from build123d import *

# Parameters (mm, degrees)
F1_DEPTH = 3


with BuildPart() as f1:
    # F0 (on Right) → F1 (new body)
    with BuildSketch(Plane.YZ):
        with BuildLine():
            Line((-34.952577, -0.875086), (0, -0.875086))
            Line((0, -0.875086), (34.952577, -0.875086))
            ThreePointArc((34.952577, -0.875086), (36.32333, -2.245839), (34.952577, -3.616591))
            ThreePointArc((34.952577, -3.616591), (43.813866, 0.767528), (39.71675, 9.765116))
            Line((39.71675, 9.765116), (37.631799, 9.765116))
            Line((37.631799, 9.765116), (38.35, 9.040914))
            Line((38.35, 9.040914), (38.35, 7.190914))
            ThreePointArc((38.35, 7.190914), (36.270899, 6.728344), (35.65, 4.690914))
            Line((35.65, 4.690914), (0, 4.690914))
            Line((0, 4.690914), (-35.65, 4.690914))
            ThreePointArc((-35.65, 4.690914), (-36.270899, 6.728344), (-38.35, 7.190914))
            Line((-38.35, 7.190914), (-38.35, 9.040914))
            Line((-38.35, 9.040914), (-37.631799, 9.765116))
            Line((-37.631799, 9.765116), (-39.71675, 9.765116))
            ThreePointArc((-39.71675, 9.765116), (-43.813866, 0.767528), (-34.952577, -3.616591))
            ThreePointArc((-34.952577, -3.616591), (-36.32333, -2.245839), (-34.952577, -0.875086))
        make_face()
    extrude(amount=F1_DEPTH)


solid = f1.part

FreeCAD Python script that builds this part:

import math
import FreeCAD as App
import Part
import Sketcher

V = App.Vector
Q = App.Units.Quantity

doc = App.newDocument("Part")
body = doc.addObject("PartDesign::Body", "Body")

# Sketch on YZ plane
sketch1 = body.newObject("Sketcher::SketchObject", "Sketch")
sketch1.AttachmentSupport = (doc.getObject("YZ_Plane"), [""])
sketch1.MapMode = "FlatFace"
sketch1.addGeometry([
    Part.LineSegment(V(-34.952577, -0.875086, 0), V(34.952577, -0.875086, 0)),  # 0
    Part.ArcOfCircle(Part.Circle(V(34.952577, -2.245839, 0), V(0, 0, 1), 1.370753), math.radians(-90.000021), math.radians(90.000021)),  # 1
    Part.ArcOfCircle(Part.Circle(V(37.119556, 3.150845, 0), V(0, 0, 1), 7.105913), math.radians(-107.755415), math.radians(68.561788)),  # 2
    Part.LineSegment(V(39.71675, 9.765116, 0), V(37.631799, 9.765116, 0)),  # 3
    Part.LineSegment(V(37.631799, 9.765116, 0), V(38.35, 9.040914, 0)),  # 4
    Part.LineSegment(V(38.35, 9.040914, 0), V(38.35, 7.190914, 0)),  # 5
    Part.ArcOfCircle(Part.Circle(V(37.706974, 5.177382, 0), V(0, 0, 1), 2.113715), math.radians(72.288988), math.radians(193.305816)),  # 6
    Part.LineSegment(V(35.65, 4.690914, 0), V(-35.65, 4.690914, 0)),  # 7
    Part.ArcOfCircle(Part.Circle(V(-37.706974, 5.177382, 0), V(0, 0, 1), 2.113715), math.radians(-13.305816), math.radians(107.711012)),  # 8
    Part.LineSegment(V(-38.35, 7.190914, 0), V(-38.35, 9.040914, 0)),  # 9
    Part.LineSegment(V(-38.35, 9.040914, 0), V(-37.631799, 9.765116, 0)),  # 10
    Part.LineSegment(V(-37.631799, 9.765116, 0), V(-39.71675, 9.765116, 0)),  # 11
    Part.ArcOfCircle(Part.Circle(V(-37.119556, 3.150845, 0), V(0, 0, 1), 7.105913), math.radians(111.438212), math.radians(287.755415)),  # 12
    Part.ArcOfCircle(Part.Circle(V(-34.952577, -2.245839, 0), V(0, 0, 1), 1.370753), math.radians(89.999979), math.radians(270.000021)),  # 13
], False)
sketch1.addConstraint([
    Sketcher.Constraint("Tangent", 0, 2, 1, 2),
    Sketcher.Constraint("Coincident", 1, 1, 2, 1),
    Sketcher.Constraint("Coincident", 2, 2, 3, 1),
    Sketcher.Constraint("Coincident", 3, 2, 4, 1),
    Sketcher.Constraint("Coincident", 4, 2, 5, 1),
    Sketcher.Constraint("Coincident", 5, 2, 6, 1),
    Sketcher.Constraint("Coincident", 6, 2, 7, 1),
    Sketcher.Constraint("Coincident", 7, 2, 8, 1),
    Sketcher.Constraint("Coincident", 8, 2, 9, 1),
    Sketcher.Constraint("Coincident", 9, 2, 10, 1),
    Sketcher.Constraint("Coincident", 10, 2, 11, 1),
    Sketcher.Constraint("Coincident", 11, 2, 12, 1),
    Sketcher.Constraint("Coincident", 12, 2, 13, 2),
    Sketcher.Constraint("Tangent", 13, 1, 0, 1),
    Sketcher.Constraint("Horizontal", 0),
    Sketcher.Constraint("Horizontal", 3),
    Sketcher.Constraint("Vertical", 5),
    Sketcher.Constraint("Horizontal", 7),
    Sketcher.Constraint("Vertical", 9),
    Sketcher.Constraint("Horizontal", 11),
    Sketcher.Constraint("Equal", 6, 8),
    Sketcher.Constraint("Equal", 2, 12),
    Sketcher.Constraint("Equal", 1, 13),
    Sketcher.Constraint("Symmetric", 6, 3, 8, 3, -2),
    Sketcher.Constraint("Symmetric", 2, 3, 12, 3, -2),
    Sketcher.Constraint("Symmetric", 4, 2, 9, 2, -2),
    Sketcher.Constraint("Symmetric", 3, 2, 10, 2, -2),
    Sketcher.Constraint("Vertical", 0, 2, 1, 1),
    Sketcher.Constraint("Vertical", 13, 3, 12, 2),
    Sketcher.Constraint("DistanceX", 7, 2, 7, 1, Q("71.3 mm")),
    Sketcher.Constraint("DistanceY", 5, 2, 5, 1, Q("1.85 mm")),
    Sketcher.Constraint("DistanceX", 6, 2, 5, 2, Q("2.7 mm")),
    Sketcher.Constraint("DistanceY", 6, 2, 5, 2, Q("2.5 mm")),
    Sketcher.Constraint("Radius", 1, Q("1.370753 mm")),
    Sketcher.Constraint("Radius", 2, Q("7.105913 mm")),
    Sketcher.Constraint("Radius", 6, Q("2.113715 mm")),
    Sketcher.Constraint("DistanceY", 0, 2, 4, 2, Q("9.916 mm")),
    Sketcher.Constraint("DistanceX", 3, 2, 3, 1, Q("2.084951 mm")),
    Sketcher.Constraint("DistanceX", -1, 1, 3, 2, Q("37.631799 mm")),
    Sketcher.Constraint("DistanceY", 0, 2, 2, 2, Q("10.640202 mm")),
    Sketcher.Constraint("DistanceX", 0, 1, 0, 2, Q("69.905154 mm")),
    Sketcher.Constraint("DistanceY", 1, 3, -1, 1, Q("2.245839 mm")),
])
pad1 = body.newObject("PartDesign::Pad", "Pad")
pad1.Profile = sketch1
pad1.Length = 3

doc.recompute()
